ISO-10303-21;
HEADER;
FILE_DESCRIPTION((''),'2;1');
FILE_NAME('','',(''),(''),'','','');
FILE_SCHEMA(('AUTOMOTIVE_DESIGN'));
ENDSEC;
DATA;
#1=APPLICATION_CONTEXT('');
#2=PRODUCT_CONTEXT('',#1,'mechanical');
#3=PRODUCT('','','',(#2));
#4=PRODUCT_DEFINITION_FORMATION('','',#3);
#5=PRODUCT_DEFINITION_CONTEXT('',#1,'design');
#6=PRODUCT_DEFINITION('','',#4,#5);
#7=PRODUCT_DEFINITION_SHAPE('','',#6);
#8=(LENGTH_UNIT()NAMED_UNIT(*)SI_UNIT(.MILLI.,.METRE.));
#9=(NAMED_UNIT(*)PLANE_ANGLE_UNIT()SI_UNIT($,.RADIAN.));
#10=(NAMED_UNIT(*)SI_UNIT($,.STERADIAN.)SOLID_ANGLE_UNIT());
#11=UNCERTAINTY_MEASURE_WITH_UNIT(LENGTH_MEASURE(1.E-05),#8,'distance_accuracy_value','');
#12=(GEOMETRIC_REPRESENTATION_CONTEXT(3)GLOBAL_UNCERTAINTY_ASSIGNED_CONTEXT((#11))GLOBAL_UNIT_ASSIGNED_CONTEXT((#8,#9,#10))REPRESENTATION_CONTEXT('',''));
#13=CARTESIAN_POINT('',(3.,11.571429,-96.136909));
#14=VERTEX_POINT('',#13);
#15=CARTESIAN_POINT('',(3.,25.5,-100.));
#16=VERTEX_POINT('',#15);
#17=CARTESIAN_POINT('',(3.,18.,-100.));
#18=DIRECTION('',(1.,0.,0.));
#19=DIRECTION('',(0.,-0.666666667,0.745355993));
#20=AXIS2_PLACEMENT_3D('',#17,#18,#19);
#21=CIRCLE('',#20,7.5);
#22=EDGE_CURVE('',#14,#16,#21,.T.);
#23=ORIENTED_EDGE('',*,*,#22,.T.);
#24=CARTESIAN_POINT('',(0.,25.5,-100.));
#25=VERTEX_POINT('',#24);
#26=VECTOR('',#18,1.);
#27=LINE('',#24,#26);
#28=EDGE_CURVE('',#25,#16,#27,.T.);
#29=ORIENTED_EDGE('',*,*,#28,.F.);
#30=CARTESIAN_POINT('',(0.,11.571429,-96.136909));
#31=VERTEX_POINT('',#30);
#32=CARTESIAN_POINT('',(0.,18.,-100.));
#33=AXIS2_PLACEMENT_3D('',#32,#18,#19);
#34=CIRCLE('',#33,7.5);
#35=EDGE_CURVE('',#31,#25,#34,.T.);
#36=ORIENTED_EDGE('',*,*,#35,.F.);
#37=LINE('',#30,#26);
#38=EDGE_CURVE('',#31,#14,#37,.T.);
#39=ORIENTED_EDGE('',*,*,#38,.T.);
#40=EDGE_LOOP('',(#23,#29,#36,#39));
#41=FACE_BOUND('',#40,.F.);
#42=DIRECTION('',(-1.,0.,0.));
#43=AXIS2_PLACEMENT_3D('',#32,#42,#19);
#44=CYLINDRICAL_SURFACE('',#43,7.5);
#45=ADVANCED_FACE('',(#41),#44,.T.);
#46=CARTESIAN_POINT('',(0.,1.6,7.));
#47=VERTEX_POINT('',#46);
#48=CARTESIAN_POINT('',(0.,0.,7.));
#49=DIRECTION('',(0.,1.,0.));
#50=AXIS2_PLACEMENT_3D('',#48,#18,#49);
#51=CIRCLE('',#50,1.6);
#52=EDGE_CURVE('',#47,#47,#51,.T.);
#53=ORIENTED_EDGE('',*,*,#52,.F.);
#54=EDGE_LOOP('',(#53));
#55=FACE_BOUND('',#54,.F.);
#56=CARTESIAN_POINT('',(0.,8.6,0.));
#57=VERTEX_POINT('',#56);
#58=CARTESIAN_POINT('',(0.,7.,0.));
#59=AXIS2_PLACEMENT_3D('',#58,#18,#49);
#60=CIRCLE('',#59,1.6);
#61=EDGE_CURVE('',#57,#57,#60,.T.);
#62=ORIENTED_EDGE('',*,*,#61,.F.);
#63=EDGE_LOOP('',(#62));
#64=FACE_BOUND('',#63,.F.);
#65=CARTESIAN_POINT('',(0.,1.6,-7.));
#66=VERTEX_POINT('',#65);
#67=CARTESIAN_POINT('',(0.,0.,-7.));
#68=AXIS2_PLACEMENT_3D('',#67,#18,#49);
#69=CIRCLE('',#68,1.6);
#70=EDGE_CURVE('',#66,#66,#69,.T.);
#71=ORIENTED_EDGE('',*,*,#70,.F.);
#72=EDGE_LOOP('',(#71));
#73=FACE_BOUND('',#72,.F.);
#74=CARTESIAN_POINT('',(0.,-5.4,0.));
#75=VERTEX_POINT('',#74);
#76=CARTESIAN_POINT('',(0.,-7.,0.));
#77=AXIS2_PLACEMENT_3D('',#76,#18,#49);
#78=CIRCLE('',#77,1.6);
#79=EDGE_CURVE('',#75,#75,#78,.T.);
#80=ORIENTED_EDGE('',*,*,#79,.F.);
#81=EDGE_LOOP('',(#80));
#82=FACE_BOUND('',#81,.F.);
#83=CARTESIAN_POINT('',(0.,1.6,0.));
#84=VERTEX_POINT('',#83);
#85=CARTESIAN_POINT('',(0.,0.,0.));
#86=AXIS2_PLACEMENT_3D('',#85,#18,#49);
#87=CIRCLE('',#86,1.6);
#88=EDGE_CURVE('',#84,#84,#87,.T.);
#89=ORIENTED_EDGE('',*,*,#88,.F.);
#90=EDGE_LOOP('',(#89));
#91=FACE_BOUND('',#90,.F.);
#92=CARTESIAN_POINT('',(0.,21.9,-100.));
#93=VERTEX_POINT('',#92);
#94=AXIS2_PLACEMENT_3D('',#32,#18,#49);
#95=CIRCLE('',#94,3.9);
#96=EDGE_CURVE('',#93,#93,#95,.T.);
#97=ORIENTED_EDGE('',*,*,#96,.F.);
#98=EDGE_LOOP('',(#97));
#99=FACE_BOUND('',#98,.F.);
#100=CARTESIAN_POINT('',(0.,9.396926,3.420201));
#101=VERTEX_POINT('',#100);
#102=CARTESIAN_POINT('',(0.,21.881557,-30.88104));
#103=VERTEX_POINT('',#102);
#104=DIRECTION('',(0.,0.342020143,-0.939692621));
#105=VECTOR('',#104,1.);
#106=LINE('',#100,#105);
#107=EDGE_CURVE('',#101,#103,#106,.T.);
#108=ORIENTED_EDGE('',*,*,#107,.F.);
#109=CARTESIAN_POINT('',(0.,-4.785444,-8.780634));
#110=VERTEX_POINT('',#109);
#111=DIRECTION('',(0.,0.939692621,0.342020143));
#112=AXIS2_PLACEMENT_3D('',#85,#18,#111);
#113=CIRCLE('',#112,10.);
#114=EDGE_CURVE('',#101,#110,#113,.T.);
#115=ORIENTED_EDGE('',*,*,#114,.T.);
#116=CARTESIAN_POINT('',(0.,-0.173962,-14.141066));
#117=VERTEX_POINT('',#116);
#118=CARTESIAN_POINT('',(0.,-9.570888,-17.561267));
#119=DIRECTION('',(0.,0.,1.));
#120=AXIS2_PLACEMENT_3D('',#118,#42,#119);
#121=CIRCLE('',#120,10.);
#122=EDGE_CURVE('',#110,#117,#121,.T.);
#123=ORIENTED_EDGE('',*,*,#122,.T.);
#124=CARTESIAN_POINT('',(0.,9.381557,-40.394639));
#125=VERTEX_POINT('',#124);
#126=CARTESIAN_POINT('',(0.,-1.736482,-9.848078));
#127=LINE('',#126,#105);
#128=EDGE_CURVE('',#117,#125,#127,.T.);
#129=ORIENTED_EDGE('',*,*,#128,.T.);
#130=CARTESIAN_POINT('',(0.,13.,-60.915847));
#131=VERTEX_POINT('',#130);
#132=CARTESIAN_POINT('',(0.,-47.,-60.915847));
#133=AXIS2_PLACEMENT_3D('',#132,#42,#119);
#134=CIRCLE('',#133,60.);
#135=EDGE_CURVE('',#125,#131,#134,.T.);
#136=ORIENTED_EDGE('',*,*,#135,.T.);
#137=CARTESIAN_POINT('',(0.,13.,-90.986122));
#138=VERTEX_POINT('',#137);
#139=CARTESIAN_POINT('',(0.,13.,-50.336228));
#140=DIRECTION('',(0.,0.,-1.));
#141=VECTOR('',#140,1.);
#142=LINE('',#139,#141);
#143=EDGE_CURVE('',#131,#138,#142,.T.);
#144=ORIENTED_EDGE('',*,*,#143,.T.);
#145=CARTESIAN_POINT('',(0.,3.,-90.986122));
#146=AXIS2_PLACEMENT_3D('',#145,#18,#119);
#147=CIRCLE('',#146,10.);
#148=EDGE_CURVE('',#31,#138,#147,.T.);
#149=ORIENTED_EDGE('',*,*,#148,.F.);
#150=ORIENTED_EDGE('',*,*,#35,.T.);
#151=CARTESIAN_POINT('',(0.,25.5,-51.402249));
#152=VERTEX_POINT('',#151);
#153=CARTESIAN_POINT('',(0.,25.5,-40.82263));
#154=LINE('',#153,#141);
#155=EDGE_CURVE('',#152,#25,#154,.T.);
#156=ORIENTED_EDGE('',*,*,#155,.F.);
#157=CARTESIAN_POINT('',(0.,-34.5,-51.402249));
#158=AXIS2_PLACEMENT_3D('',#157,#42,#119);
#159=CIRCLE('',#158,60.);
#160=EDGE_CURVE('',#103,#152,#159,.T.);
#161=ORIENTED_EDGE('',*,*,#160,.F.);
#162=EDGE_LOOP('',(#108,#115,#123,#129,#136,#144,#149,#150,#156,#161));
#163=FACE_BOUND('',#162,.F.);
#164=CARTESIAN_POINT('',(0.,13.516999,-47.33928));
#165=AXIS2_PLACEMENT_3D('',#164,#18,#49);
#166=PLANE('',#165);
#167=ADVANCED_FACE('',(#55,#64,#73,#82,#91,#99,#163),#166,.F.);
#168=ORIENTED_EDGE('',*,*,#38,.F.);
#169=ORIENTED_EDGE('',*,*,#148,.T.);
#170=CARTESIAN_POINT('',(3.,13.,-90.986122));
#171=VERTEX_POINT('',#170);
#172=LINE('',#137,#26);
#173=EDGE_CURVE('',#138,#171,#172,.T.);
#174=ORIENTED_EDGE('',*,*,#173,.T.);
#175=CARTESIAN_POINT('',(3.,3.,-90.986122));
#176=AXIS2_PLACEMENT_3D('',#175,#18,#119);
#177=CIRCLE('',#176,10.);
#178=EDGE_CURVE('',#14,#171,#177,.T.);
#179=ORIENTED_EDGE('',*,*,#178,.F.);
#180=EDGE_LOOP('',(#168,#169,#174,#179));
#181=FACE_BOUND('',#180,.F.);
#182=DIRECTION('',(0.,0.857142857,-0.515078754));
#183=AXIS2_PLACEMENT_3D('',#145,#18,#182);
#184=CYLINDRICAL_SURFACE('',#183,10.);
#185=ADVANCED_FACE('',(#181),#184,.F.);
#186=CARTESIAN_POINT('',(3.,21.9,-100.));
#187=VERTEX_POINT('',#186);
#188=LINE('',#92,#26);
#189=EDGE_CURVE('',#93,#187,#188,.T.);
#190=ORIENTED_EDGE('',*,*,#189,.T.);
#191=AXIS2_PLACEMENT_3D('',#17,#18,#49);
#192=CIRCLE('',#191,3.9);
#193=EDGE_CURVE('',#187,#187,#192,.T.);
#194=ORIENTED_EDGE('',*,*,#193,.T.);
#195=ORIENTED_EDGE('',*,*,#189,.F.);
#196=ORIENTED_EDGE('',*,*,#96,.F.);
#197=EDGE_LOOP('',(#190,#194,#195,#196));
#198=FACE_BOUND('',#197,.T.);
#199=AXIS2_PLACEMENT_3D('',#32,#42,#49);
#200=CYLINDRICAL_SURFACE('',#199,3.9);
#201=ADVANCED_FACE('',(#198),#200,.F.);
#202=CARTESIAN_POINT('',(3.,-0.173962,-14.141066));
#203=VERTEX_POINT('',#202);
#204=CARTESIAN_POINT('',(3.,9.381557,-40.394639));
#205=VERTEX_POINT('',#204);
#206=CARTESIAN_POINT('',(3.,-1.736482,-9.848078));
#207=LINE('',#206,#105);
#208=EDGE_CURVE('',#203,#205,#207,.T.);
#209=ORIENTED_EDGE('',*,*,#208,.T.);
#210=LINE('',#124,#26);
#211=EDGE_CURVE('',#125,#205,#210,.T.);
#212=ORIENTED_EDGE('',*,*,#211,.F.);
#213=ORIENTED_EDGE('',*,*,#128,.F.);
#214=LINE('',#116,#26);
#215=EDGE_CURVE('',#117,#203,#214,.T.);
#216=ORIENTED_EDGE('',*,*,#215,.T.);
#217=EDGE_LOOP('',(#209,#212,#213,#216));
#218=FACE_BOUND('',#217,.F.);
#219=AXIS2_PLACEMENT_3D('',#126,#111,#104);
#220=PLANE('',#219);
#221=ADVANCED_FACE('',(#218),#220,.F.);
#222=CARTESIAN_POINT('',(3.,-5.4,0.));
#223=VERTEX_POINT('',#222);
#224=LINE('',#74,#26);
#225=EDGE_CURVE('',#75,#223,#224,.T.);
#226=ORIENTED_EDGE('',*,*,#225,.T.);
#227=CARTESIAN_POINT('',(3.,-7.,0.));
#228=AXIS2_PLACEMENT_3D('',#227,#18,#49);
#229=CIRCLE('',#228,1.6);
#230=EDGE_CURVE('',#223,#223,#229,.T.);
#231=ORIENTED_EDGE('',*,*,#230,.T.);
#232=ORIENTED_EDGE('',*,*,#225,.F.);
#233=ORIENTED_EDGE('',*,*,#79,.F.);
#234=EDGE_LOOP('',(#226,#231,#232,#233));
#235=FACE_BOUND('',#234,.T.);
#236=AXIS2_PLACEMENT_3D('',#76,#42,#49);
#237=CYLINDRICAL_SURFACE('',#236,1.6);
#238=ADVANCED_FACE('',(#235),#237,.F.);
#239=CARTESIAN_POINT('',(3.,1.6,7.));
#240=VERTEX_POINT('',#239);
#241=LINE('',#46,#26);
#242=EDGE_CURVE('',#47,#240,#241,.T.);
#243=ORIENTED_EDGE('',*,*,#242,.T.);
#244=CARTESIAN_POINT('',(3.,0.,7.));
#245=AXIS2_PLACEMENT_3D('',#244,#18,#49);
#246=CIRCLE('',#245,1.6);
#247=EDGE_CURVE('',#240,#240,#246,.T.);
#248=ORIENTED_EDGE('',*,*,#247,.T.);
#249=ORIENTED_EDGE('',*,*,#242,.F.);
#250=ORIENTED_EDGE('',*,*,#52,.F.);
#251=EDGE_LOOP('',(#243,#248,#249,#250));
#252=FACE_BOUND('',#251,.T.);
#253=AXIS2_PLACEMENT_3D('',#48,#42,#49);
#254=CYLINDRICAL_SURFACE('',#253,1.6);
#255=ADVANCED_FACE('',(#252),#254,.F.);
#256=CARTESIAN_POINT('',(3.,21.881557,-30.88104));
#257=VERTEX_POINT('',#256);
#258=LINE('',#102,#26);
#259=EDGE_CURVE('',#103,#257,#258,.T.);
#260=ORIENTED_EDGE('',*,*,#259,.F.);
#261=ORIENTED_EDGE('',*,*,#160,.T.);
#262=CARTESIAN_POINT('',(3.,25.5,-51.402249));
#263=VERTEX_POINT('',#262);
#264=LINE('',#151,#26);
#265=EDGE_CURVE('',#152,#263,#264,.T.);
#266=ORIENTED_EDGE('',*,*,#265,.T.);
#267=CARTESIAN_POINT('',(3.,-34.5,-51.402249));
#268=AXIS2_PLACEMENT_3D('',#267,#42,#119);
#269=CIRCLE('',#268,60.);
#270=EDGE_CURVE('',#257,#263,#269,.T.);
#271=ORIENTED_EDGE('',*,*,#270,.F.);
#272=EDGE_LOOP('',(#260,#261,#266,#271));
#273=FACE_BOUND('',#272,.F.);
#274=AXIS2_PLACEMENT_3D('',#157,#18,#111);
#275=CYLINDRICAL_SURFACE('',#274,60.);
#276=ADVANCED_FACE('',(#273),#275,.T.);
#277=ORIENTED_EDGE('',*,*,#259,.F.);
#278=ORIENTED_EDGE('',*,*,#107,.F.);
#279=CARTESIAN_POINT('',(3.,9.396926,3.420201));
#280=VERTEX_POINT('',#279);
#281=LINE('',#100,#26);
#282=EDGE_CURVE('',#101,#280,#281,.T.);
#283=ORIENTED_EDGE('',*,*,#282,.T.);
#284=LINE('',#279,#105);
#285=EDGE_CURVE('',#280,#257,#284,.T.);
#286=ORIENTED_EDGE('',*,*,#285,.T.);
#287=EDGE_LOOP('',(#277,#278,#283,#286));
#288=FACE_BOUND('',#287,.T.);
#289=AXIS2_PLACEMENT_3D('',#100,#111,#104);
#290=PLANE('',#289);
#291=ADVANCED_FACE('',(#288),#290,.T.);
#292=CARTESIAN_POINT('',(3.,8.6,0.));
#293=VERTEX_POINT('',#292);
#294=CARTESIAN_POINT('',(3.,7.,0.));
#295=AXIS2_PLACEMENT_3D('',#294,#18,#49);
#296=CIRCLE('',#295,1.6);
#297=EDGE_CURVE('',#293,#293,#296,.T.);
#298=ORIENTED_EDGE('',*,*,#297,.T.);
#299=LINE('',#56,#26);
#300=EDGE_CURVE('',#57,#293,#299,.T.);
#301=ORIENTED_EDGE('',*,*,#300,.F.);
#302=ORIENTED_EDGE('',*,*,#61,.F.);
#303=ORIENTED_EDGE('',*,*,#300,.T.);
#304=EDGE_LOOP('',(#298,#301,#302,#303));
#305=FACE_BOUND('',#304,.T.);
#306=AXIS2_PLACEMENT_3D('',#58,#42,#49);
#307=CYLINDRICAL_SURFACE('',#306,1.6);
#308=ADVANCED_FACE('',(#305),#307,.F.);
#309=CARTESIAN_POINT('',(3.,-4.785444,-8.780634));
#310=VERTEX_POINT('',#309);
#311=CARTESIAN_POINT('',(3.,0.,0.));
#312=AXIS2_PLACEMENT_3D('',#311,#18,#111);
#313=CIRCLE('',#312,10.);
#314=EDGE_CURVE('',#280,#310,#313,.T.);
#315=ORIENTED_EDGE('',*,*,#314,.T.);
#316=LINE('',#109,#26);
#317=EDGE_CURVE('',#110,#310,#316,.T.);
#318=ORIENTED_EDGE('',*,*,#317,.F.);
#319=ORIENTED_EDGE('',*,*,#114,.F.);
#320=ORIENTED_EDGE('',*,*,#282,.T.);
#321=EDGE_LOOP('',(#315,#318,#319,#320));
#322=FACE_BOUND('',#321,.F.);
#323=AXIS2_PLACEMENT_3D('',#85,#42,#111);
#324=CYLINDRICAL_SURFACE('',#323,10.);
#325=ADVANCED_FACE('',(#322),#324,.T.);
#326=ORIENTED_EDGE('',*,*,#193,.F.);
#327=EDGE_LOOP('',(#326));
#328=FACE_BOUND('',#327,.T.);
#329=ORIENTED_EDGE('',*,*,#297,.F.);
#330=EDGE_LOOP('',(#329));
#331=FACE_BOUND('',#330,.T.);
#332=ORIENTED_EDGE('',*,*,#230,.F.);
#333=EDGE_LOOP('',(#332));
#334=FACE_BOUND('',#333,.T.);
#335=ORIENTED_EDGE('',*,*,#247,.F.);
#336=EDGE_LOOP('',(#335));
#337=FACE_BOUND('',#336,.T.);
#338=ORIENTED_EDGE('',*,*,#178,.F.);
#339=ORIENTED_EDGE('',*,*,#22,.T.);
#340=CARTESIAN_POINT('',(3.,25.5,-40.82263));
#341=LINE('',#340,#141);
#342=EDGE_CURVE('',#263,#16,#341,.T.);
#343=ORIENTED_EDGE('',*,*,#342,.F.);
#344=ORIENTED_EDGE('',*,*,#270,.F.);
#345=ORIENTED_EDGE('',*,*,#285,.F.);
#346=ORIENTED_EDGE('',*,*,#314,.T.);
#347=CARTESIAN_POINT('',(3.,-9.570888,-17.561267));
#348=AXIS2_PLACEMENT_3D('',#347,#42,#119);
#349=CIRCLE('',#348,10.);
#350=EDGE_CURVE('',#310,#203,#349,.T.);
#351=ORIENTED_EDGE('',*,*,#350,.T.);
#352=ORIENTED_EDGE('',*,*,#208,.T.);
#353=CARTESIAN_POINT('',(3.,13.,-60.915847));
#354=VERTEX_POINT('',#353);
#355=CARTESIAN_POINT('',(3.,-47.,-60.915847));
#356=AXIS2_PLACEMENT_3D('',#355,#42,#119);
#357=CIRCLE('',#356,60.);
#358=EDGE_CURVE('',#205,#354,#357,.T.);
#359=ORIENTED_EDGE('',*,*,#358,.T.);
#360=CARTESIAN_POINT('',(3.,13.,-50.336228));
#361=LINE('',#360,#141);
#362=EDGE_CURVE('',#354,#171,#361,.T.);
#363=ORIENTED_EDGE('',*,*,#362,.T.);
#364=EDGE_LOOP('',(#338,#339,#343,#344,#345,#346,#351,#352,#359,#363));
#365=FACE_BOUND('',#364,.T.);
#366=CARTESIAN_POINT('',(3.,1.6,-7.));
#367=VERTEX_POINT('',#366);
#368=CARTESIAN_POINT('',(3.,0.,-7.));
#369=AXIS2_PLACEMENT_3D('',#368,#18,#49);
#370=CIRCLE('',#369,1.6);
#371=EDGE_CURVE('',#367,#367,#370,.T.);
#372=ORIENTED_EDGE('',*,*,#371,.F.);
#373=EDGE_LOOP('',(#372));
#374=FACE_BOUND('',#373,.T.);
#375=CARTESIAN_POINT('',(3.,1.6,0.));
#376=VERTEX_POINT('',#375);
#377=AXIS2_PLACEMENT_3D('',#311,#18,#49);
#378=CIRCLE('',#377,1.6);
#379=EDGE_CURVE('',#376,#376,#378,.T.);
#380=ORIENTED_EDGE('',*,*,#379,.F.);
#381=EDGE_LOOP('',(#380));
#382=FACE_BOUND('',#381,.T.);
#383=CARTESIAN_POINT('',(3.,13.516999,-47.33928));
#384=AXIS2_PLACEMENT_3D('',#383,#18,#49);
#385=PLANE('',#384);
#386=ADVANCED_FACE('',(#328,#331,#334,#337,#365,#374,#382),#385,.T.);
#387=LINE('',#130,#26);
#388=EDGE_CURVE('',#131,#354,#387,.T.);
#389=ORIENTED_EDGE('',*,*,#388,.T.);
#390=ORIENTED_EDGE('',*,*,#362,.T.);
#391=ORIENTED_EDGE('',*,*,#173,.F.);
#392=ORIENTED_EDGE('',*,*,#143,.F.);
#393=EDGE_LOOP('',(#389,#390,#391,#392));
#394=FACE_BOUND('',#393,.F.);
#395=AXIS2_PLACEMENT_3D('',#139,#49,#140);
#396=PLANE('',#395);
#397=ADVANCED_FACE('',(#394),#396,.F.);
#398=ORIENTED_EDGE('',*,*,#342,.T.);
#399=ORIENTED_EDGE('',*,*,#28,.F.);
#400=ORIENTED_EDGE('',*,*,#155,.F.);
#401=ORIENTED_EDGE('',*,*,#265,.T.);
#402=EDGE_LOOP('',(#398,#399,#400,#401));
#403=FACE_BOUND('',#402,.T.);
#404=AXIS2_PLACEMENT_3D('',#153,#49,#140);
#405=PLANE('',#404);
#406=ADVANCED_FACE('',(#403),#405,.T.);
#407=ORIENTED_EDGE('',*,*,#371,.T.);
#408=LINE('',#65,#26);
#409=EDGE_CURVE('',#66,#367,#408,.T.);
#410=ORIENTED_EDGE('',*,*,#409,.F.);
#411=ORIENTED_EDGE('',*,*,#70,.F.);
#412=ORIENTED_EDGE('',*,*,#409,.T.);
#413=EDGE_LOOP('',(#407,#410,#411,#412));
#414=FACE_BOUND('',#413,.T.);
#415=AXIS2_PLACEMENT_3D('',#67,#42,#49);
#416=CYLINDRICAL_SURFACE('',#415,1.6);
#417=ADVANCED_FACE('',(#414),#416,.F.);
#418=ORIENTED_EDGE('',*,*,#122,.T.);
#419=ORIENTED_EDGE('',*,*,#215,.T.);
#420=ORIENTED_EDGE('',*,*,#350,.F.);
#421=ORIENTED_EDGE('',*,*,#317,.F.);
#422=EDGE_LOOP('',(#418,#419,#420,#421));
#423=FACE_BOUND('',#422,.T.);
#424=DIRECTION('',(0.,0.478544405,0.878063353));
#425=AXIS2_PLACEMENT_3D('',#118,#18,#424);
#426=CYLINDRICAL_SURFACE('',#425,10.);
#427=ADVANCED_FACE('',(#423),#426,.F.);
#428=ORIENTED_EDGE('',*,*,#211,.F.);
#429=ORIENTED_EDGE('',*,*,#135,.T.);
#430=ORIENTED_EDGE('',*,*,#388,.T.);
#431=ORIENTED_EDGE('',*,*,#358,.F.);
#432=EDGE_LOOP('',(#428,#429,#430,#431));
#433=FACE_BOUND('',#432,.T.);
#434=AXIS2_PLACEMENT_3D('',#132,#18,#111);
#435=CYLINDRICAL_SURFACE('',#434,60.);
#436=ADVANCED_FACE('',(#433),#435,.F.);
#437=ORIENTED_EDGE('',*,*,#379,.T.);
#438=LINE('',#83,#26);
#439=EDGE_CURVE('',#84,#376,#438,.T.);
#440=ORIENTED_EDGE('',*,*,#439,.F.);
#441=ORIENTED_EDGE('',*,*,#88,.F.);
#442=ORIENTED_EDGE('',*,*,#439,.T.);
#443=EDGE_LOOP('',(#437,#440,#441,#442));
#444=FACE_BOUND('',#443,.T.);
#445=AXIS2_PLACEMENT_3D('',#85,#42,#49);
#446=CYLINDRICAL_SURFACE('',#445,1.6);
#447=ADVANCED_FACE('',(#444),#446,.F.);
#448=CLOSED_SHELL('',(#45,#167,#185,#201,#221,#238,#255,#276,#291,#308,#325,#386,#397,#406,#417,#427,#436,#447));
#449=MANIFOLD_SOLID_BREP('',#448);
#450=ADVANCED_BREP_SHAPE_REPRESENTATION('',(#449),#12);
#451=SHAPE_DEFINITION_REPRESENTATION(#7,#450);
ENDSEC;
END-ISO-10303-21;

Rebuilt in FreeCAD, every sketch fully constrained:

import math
import FreeCAD as App
import Part
import Sketcher
Q = App.Units.Quantity


def edges_at(feature, points):
    """Names of the edges that pass closest to the given points."""
    edges = feature.Shape.Edges
    near = lambda p: min(range(len(edges)), key=lambda i: edges[i].distToShape(Part.Vertex(*p))[0])
    return sorted({f"Edge{near(p) + 1}" for p in points})

doc = App.newDocument("Part")
params = doc.addObject("Spreadsheet::Sheet", "Params")
for row, (alias, value) in enumerate([
    ("sketch1_radius", "10 mm"),
    ("sketch1_diameter", "7.8 mm"),
    ("sketch1_diameter2", "3.2 mm"),
    ("sketch1_radius2", "7.5 mm"),
    ("pad1_length", "3 mm"),
    ("fillet_radius", "60 mm"),
    ("fillet2_radius", "10 mm"),
], start=1):
    params.set(f"A{row}", alias)
    params.set(f"B{row}", "=" + value)
    params.setAlias(f"B{row}", alias)

body = doc.addObject("PartDesign::Body", "Body")

# Sketch on YZ plane
sketch1 = doc.addObject("Sketcher::SketchObject", "Sketch")
body.addObject(sketch1)
sketch1.AttachmentSupport = (doc.YZ_Plane, [""])
sketch1.MapMode = "FlatFace"
sketch1.addGeometry(Part.ArcOfCircle(Part.Circle(App.Vector(0, 0, 0), App.Vector(0, 0, 1), 10), math.radians(20), math.radians(260)), False)
sketch1.addGeometry(Part.LineSegment(App.Vector(-1.7, -9.8, 0), App.Vector(13, -50.3, 0)), False)
sketch1.addGeometry(Part.LineSegment(App.Vector(13, -50.3, 0), App.Vector(13, -94.4, 0)), False)
sketch1.addGeometry(Part.ArcOfCircle(Part.Circle(App.Vector(18, -100, 0), App.Vector(0, 0, 1), 7.5), math.radians(132), math.radians(360)), False)
sketch1.addGeometry(Part.LineSegment(App.Vector(25.5, -100, 0), App.Vector(25.5, -40.8, 0)), False)
sketch1.addGeometry(Part.LineSegment(App.Vector(25.5, -40.8, 0), App.Vector(9.4, 3.4, 0)), False)
sketch1.addGeometry(Part.Circle(App.Vector(18, -100, 0), App.Vector(0, 0, 1), 3.9), False)
sketch1.addGeometry(Part.Circle(App.Vector(-7, 0, 0), App.Vector(0, 0, 1), 1.6), False)
sketch1.addGeometry(Part.Circle(App.Vector(0, -7, 0), App.Vector(0, 0, 1), 1.6), False)
sketch1.addGeometry(Part.Circle(App.Vector(0, 0, 0), App.Vector(0, 0, 1), 1.6), False)
sketch1.addGeometry(Part.Circle(App.Vector(0, 7, 0), App.Vector(0, 0, 1), 1.6), False)
sketch1.addGeometry(Part.Circle(App.Vector(7, 0, 0), App.Vector(0, 0, 1), 1.6), False)
sketch1.addConstraint(Sketcher.Constraint("Coincident", 0, 2, 1, 1))
sketch1.addConstraint(Sketcher.Constraint("Coincident", 1, 2, 2, 1))
sketch1.addConstraint(Sketcher.Constraint("Coincident", 2, 2, 3, 1))
sketch1.addConstraint(Sketcher.Constraint("Tangent", 3, 2, 4, 1))
sketch1.addConstraint(Sketcher.Constraint("Coincident", 4, 2, 5, 1))
sketch1.addConstraint(Sketcher.Constraint("Tangent", 5, 2, 0, 1))
sketch1.addConstraint(Sketcher.Constraint("Vertical", 2))
sketch1.addConstraint(Sketcher.Constraint("Vertical", 4))
sketch1.addConstraint(Sketcher.Constraint("Coincident", 0, 3, -1, 1))
sketch1.addConstraint(Sketcher.Constraint("Coincident", 9, 3, -1, 1))
sketch1.addConstraint(Sketcher.Constraint("Coincident", 6, 3, 3, 3))
sketch1.addConstraint(Sketcher.Constraint("Equal", 7, 8))
sketch1.addConstraint(Sketcher.Constraint("Equal", 8, 9))
sketch1.addConstraint(Sketcher.Constraint("Equal", 9, 10))
sketch1.addConstraint(Sketcher.Constraint("Equal", 10, 11))
sketch1.addConstraint(Sketcher.Constraint("Symmetric", 8, 3, 10, 3, -1, 1))
sketch1.addConstraint(Sketcher.Constraint("Symmetric", 7, 3, 11, 3, -1, 1))
sketch1.addConstraint(Sketcher.Constraint("PointOnObject", 7, 3, -1))
sketch1.addConstraint(Sketcher.Constraint("PointOnObject", 8, 3, -2))
sketch1.addConstraint(Sketcher.Constraint("Parallel", 1, 5))
sketch1.addConstraint(Sketcher.Constraint("Radius", 0, 10.0))
sketch1.addConstraint(Sketcher.Constraint("Diameter", 6, 7.8))
sketch1.addConstraint(Sketcher.Constraint("Diameter", 7, 3.2))
sketch1.addConstraint(Sketcher.Constraint("Radius", 3, 7.5))
sketch1.addConstraint(Sketcher.Constraint("Angle", 1, Q("-70 deg")))
sketch1.addConstraint(Sketcher.Constraint("DistanceX", -1, 1, 3, 3, 18.0))
sketch1.addConstraint(Sketcher.Constraint("DistanceY", 3, 3, -1, 1, 100.0))
sketch1.addConstraint(Sketcher.Constraint("DistanceX", 7, 3, -1, 1, 7.0))
sketch1.addConstraint(Sketcher.Constraint("DistanceY", 8, 3, -1, 1, 7.0))
sketch1.addConstraint(Sketcher.Constraint("DistanceX", -1, 1, 1, 2, 13.0))
sketch1.addConstraint(Sketcher.Constraint("DistanceY", 2, 2, 2, 1, 44.073602))
sketch1.setExpression("Constraints[20]", "Params.sketch1_radius")
sketch1.setExpression("Constraints[21]", "Params.sketch1_diameter")
sketch1.setExpression("Constraints[22]", "Params.sketch1_diameter2")
sketch1.setExpression("Constraints[23]", "Params.sketch1_radius2")
pad1 = doc.addObject("PartDesign::Pad", "Pad")
body.addObject(pad1)
pad1.Profile = sketch1
pad1.setExpression("Length", "Params.pad1_length")
doc.recompute()

fillet = doc.addObject("PartDesign::Fillet", "Fillet")
body.addObject(fillet)
fillet.Base = (pad1, edges_at(pad1, [(1.5, 13, -50.336), (1.5, 25.5, -40.823)]))
fillet.setExpression("Radius", "Params.fillet_radius")
doc.recompute()

fillet2 = doc.addObject("PartDesign::Fillet", "Fillet001")
body.addObject(fillet2)
fillet2.Base = (fillet, edges_at(fillet, [(1.5, 13, -94.41), (1.5, -1.736, -9.848)]))
fillet2.setExpression("Radius", "Params.fillet2_radius")

doc.recompute()
